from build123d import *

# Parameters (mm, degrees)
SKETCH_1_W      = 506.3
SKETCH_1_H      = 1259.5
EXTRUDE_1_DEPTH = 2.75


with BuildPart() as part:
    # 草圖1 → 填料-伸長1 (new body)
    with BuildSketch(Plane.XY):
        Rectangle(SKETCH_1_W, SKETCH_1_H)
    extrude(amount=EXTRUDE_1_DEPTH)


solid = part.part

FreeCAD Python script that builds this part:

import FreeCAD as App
import Part
import Sketcher

V = App.Vector


def add_polygon(sketch, points):
    """Adds a closed chain of lines whose ends are joined by coincident constraints."""
    first, n = sketch.GeometryCount, len(points)
    for a, b in zip(points, points[1:] + points[:1]):
        sketch.addGeometry(Part.LineSegment(App.Vector(*a, 0), App.Vector(*b, 0)), False)
    for i in range(n):
        sketch.addConstraint(Sketcher.Constraint("Coincident", first + i, 2, first + (i + 1) % n, 1))

doc = App.newDocument("Part")
body = doc.addObject("PartDesign::Body", "Body")

# Sketch on XY plane
sketch1 = body.newObject("Sketcher::SketchObject", "Sketch")
sketch1.AttachmentSupport = (doc.getObject("XY_Plane"), [""])
sketch1.MapMode = "FlatFace"
add_polygon(sketch1, [(-253, 630), (-253, -630), (253, -630), (253, 630)])  # lines 0-3
sketch1.addConstraint([
    Sketcher.Constraint("Vertical", 0),
    Sketcher.Constraint("Horizontal", 1),
    Sketcher.Constraint("Vertical", 2),
    Sketcher.Constraint("Horizontal", 3),
    Sketcher.Constraint("Symmetric", 0, 2, 2, 2, -1, 1),
    Sketcher.Constraint("DistanceX", 1, 1, 1, 2, 506.3),
    Sketcher.Constraint("DistanceY", 0, 2, 0, 1, 1259.5),
])
pad1 = body.newObject("PartDesign::Pad", "Pad")
pad1.Profile = sketch1
pad1.Length = 2.75

doc.recompute()
